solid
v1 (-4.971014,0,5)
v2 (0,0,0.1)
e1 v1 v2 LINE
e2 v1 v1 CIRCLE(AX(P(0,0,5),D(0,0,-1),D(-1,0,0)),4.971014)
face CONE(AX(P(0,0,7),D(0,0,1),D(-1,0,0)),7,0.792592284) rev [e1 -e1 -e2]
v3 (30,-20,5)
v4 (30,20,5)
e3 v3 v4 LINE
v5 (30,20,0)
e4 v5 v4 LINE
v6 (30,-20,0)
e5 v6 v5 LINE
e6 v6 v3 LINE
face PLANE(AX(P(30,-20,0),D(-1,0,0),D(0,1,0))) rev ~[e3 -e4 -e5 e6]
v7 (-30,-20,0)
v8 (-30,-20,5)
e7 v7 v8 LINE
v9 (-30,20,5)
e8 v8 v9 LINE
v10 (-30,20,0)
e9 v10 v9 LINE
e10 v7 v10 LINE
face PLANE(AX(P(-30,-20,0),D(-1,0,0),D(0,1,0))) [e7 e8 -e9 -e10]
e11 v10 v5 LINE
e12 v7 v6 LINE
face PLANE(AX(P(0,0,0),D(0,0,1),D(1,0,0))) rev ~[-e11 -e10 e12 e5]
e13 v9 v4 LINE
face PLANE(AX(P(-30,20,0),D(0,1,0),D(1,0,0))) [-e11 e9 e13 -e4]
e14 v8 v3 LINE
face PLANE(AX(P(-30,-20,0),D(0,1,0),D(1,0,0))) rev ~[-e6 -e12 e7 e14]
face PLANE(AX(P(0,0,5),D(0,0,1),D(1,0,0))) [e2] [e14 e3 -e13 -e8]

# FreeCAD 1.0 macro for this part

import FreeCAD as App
import Part
import Sketcher
Q = App.Units.Quantity

doc = App.newDocument("Part")
params = doc.addObject("Spreadsheet::Sheet", "Params")
for row, (alias, value) in enumerate([
    ("sketch1_width", "60 mm"),
    ("sketch1_height", "40 mm"),
    ("pad1_length", "5 mm"),
    ("sketch2_width", "7 mm"),
    ("sketch2_height", "6.9 mm"),
    ("groove_angle", "360 deg"),
], start=1):
    params.set(f"A{row}", alias)
    params.set(f"B{row}", "=" + value)
    params.setAlias(f"B{row}", alias)

body = doc.addObject("PartDesign::Body", "Body")

sketch1 = body.newObject("Sketcher::SketchObject", "Sketch")
sketch1.AttachmentSupport = (doc.getObject("XY_Plane"), [""])
sketch1.MapMode = "FlatFace"
sketch1.addGeometry([
    Part.LineSegment(App.Vector(-30, 20, 0), App.Vector(-30, -20, 0)),
    Part.LineSegment(App.Vector(-30, -20, 0), App.Vector(30, -20, 0)),
    Part.LineSegment(App.Vector(30, -20, 0), App.Vector(30, 20, 0)),
    Part.LineSegment(App.Vector(30, 20, 0), App.Vector(-30, 20, 0)),
], False)
sketch1.addConstraint([
    Sketcher.Constraint("Coincident", 0, 2, 1, 1),
    Sketcher.Constraint("Coincident", 1, 2, 2, 1),
    Sketcher.Constraint("Coincident", 2, 2, 3, 1),
    Sketcher.Constraint("Coincident", 3, 2, 0, 1),
    Sketcher.Constraint("Vertical", 0),
    Sketcher.Constraint("Horizontal", 1),
    Sketcher.Constraint("Vertical", 2),
    Sketcher.Constraint("Horizontal", 3),
    Sketcher.Constraint("Symmetric", 0, 2, 2, 2, -1, 1),
    Sketcher.Constraint("DistanceX", 1, 1, 1, 2, Q("60 mm")),
    Sketcher.Constraint("DistanceY", 0, 2, 0, 1, Q("40 mm")),
])
sketch1.setExpression("Constraints[9]", "Params.sketch1_width")
sketch1.setExpression("Constraints[10]", "Params.sketch1_height")
pad1 = body.newObject("PartDesign::Pad", "Pad")
pad1.Profile = sketch1
pad1.setExpression("Length", "Params.pad1_length")

sketch2 = body.newObject("Sketcher::SketchObject", "Sketch001")
sketch2.AttachmentSupport = (doc.getObject("XZ_Plane"), [""])
sketch2.MapMode = "FlatFace"
sketch2.addGeometry([
    Part.LineSegment(App.Vector(0, 7, 0), App.Vector(-7, 7, 0)),
    Part.LineSegment(App.Vector(-7, 7, 0), App.Vector(0, 0, 0)),
    Part.LineSegment(App.Vector(0, 0, 0), App.Vector(0, 7, 0)),
], False)
sketch2.addConstraint([
    Sketcher.Constraint("Coincident", 0, 2, 1, 1),
    Sketcher.Constraint("Coincident", 1, 2, 2, 1),
    Sketcher.Constraint("Coincident", 2, 2, 0, 1),
    Sketcher.Constraint("Horizontal", 0),
    Sketcher.Constraint("Vertical", 2),
    Sketcher.Constraint("PointOnObject", 1, 2, -2),
    Sketcher.Constraint("DistanceX", 0, 2, 0, 1, Q("7 mm")),
    Sketcher.Constraint("DistanceY", 2, 1, 2, 2, Q("6.9 mm")),
    Sketcher.Constraint("DistanceY", -1, 1, 0, 2, Q("7 mm")),
])
sketch2.setExpression("Constraints[6]", "Params.sketch2_width")
sketch2.setExpression("Constraints[7]", "Params.sketch2_height")
groove = body.newObject("PartDesign::Groove", "Groove")
groove.Profile = sketch2
groove.ReferenceAxis = (sketch2, ["V_Axis"])
groove.setExpression("Angle", "Params.groove_angle")

doc.recompute()
